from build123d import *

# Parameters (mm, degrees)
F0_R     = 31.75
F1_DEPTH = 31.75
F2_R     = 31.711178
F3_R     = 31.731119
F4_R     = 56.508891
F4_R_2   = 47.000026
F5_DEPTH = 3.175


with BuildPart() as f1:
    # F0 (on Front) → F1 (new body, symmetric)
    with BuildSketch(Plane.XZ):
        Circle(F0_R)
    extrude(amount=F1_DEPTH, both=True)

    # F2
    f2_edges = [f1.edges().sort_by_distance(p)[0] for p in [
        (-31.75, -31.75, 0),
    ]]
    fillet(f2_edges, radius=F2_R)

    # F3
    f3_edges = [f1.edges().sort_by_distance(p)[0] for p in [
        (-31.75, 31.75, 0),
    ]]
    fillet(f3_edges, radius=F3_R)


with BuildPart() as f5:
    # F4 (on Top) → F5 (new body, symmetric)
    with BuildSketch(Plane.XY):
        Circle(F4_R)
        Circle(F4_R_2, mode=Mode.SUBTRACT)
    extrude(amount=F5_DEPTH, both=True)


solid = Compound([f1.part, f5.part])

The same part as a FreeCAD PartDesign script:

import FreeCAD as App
import Part
import Sketcher
from FreeCAD import Vector
Q = App.Units.Quantity


def edges_at(feature, points):
    """Names of the edges that pass closest to the given points."""
    edges = feature.Shape.Edges
    near = lambda p: min(range(len(edges)), key=lambda i: edges[i].distToShape(Part.Vertex(*p))[0])
    return sorted({f"Edge{near(p) + 1}" for p in points})

doc = App.newDocument("Part")
body = doc.addObject("PartDesign::Body", "Body")

# Sketch on XZ plane
sketch1 = body.newObject("Sketcher::SketchObject", "Sketch")
sketch1.AttachmentSupport = (doc.getObject("XZ_Plane"), [""])
sketch1.MapMode = "FlatFace"
sketch1.addGeometry(Part.Circle(Vector(0, 0, 0), Vector(0, 0, 1), 32), False)
sketch1.addConstraint(Sketcher.Constraint("Coincident", 0, 3, -1, 1))
sketch1.addConstraint(Sketcher.Constraint("Diameter", 0, Q("2.5 in")))
pad1 = body.newObject("PartDesign::Pad", "Pad")
pad1.Profile = sketch1
pad1.Length = Q("2.5 in")
pad1.Midplane = True
doc.recompute()

fillet = body.newObject("PartDesign::Fillet", "Fillet")
fillet.Base = (pad1, edges_at(pad1, [(-31.75, -31.75, 0)]))
fillet.Radius = 31.711178
doc.recompute()

fillet2 = body.newObject("PartDesign::Fillet", "Fillet001")
fillet2.Base = (fillet, edges_at(fillet, [(-31.75, 31.75, 0)]))
fillet2.Radius = 31.731119
body2 = doc.addObject("PartDesign::Body", "Body001")

# Sketch on XY plane
sketch2 = body2.newObject("Sketcher::SketchObject", "Sketch001")
sketch2.AttachmentSupport = (doc.getObject("XY_Plane001"), [""])
sketch2.MapMode = "FlatFace"
sketch2.addGeometry(Part.Circle(Vector(0, 0, 0), Vector(0, 0, 1), 56.508891), False)
sketch2.addGeometry(Part.Circle(Vector(0, 0, 0), Vector(0, 0, 1), 47.000026), False)
sketch2.addConstraint(Sketcher.Constraint("Coincident", 0, 3, -1, 1))
sketch2.addConstraint(Sketcher.Constraint("Coincident", 1, 3, -1, 1))
sketch2.addConstraint(Sketcher.Constraint("Diameter", 0, Q("113.017782 mm")))
sketch2.addConstraint(Sketcher.Constraint("Diameter", 1, Q("94.000052 mm")))
pad2 = body2.newObject("PartDesign::Pad", "Pad001")
pad2.Profile = sketch2
pad2.Length = Q("0.25 in")
pad2.Midplane = True

doc.recompute()
